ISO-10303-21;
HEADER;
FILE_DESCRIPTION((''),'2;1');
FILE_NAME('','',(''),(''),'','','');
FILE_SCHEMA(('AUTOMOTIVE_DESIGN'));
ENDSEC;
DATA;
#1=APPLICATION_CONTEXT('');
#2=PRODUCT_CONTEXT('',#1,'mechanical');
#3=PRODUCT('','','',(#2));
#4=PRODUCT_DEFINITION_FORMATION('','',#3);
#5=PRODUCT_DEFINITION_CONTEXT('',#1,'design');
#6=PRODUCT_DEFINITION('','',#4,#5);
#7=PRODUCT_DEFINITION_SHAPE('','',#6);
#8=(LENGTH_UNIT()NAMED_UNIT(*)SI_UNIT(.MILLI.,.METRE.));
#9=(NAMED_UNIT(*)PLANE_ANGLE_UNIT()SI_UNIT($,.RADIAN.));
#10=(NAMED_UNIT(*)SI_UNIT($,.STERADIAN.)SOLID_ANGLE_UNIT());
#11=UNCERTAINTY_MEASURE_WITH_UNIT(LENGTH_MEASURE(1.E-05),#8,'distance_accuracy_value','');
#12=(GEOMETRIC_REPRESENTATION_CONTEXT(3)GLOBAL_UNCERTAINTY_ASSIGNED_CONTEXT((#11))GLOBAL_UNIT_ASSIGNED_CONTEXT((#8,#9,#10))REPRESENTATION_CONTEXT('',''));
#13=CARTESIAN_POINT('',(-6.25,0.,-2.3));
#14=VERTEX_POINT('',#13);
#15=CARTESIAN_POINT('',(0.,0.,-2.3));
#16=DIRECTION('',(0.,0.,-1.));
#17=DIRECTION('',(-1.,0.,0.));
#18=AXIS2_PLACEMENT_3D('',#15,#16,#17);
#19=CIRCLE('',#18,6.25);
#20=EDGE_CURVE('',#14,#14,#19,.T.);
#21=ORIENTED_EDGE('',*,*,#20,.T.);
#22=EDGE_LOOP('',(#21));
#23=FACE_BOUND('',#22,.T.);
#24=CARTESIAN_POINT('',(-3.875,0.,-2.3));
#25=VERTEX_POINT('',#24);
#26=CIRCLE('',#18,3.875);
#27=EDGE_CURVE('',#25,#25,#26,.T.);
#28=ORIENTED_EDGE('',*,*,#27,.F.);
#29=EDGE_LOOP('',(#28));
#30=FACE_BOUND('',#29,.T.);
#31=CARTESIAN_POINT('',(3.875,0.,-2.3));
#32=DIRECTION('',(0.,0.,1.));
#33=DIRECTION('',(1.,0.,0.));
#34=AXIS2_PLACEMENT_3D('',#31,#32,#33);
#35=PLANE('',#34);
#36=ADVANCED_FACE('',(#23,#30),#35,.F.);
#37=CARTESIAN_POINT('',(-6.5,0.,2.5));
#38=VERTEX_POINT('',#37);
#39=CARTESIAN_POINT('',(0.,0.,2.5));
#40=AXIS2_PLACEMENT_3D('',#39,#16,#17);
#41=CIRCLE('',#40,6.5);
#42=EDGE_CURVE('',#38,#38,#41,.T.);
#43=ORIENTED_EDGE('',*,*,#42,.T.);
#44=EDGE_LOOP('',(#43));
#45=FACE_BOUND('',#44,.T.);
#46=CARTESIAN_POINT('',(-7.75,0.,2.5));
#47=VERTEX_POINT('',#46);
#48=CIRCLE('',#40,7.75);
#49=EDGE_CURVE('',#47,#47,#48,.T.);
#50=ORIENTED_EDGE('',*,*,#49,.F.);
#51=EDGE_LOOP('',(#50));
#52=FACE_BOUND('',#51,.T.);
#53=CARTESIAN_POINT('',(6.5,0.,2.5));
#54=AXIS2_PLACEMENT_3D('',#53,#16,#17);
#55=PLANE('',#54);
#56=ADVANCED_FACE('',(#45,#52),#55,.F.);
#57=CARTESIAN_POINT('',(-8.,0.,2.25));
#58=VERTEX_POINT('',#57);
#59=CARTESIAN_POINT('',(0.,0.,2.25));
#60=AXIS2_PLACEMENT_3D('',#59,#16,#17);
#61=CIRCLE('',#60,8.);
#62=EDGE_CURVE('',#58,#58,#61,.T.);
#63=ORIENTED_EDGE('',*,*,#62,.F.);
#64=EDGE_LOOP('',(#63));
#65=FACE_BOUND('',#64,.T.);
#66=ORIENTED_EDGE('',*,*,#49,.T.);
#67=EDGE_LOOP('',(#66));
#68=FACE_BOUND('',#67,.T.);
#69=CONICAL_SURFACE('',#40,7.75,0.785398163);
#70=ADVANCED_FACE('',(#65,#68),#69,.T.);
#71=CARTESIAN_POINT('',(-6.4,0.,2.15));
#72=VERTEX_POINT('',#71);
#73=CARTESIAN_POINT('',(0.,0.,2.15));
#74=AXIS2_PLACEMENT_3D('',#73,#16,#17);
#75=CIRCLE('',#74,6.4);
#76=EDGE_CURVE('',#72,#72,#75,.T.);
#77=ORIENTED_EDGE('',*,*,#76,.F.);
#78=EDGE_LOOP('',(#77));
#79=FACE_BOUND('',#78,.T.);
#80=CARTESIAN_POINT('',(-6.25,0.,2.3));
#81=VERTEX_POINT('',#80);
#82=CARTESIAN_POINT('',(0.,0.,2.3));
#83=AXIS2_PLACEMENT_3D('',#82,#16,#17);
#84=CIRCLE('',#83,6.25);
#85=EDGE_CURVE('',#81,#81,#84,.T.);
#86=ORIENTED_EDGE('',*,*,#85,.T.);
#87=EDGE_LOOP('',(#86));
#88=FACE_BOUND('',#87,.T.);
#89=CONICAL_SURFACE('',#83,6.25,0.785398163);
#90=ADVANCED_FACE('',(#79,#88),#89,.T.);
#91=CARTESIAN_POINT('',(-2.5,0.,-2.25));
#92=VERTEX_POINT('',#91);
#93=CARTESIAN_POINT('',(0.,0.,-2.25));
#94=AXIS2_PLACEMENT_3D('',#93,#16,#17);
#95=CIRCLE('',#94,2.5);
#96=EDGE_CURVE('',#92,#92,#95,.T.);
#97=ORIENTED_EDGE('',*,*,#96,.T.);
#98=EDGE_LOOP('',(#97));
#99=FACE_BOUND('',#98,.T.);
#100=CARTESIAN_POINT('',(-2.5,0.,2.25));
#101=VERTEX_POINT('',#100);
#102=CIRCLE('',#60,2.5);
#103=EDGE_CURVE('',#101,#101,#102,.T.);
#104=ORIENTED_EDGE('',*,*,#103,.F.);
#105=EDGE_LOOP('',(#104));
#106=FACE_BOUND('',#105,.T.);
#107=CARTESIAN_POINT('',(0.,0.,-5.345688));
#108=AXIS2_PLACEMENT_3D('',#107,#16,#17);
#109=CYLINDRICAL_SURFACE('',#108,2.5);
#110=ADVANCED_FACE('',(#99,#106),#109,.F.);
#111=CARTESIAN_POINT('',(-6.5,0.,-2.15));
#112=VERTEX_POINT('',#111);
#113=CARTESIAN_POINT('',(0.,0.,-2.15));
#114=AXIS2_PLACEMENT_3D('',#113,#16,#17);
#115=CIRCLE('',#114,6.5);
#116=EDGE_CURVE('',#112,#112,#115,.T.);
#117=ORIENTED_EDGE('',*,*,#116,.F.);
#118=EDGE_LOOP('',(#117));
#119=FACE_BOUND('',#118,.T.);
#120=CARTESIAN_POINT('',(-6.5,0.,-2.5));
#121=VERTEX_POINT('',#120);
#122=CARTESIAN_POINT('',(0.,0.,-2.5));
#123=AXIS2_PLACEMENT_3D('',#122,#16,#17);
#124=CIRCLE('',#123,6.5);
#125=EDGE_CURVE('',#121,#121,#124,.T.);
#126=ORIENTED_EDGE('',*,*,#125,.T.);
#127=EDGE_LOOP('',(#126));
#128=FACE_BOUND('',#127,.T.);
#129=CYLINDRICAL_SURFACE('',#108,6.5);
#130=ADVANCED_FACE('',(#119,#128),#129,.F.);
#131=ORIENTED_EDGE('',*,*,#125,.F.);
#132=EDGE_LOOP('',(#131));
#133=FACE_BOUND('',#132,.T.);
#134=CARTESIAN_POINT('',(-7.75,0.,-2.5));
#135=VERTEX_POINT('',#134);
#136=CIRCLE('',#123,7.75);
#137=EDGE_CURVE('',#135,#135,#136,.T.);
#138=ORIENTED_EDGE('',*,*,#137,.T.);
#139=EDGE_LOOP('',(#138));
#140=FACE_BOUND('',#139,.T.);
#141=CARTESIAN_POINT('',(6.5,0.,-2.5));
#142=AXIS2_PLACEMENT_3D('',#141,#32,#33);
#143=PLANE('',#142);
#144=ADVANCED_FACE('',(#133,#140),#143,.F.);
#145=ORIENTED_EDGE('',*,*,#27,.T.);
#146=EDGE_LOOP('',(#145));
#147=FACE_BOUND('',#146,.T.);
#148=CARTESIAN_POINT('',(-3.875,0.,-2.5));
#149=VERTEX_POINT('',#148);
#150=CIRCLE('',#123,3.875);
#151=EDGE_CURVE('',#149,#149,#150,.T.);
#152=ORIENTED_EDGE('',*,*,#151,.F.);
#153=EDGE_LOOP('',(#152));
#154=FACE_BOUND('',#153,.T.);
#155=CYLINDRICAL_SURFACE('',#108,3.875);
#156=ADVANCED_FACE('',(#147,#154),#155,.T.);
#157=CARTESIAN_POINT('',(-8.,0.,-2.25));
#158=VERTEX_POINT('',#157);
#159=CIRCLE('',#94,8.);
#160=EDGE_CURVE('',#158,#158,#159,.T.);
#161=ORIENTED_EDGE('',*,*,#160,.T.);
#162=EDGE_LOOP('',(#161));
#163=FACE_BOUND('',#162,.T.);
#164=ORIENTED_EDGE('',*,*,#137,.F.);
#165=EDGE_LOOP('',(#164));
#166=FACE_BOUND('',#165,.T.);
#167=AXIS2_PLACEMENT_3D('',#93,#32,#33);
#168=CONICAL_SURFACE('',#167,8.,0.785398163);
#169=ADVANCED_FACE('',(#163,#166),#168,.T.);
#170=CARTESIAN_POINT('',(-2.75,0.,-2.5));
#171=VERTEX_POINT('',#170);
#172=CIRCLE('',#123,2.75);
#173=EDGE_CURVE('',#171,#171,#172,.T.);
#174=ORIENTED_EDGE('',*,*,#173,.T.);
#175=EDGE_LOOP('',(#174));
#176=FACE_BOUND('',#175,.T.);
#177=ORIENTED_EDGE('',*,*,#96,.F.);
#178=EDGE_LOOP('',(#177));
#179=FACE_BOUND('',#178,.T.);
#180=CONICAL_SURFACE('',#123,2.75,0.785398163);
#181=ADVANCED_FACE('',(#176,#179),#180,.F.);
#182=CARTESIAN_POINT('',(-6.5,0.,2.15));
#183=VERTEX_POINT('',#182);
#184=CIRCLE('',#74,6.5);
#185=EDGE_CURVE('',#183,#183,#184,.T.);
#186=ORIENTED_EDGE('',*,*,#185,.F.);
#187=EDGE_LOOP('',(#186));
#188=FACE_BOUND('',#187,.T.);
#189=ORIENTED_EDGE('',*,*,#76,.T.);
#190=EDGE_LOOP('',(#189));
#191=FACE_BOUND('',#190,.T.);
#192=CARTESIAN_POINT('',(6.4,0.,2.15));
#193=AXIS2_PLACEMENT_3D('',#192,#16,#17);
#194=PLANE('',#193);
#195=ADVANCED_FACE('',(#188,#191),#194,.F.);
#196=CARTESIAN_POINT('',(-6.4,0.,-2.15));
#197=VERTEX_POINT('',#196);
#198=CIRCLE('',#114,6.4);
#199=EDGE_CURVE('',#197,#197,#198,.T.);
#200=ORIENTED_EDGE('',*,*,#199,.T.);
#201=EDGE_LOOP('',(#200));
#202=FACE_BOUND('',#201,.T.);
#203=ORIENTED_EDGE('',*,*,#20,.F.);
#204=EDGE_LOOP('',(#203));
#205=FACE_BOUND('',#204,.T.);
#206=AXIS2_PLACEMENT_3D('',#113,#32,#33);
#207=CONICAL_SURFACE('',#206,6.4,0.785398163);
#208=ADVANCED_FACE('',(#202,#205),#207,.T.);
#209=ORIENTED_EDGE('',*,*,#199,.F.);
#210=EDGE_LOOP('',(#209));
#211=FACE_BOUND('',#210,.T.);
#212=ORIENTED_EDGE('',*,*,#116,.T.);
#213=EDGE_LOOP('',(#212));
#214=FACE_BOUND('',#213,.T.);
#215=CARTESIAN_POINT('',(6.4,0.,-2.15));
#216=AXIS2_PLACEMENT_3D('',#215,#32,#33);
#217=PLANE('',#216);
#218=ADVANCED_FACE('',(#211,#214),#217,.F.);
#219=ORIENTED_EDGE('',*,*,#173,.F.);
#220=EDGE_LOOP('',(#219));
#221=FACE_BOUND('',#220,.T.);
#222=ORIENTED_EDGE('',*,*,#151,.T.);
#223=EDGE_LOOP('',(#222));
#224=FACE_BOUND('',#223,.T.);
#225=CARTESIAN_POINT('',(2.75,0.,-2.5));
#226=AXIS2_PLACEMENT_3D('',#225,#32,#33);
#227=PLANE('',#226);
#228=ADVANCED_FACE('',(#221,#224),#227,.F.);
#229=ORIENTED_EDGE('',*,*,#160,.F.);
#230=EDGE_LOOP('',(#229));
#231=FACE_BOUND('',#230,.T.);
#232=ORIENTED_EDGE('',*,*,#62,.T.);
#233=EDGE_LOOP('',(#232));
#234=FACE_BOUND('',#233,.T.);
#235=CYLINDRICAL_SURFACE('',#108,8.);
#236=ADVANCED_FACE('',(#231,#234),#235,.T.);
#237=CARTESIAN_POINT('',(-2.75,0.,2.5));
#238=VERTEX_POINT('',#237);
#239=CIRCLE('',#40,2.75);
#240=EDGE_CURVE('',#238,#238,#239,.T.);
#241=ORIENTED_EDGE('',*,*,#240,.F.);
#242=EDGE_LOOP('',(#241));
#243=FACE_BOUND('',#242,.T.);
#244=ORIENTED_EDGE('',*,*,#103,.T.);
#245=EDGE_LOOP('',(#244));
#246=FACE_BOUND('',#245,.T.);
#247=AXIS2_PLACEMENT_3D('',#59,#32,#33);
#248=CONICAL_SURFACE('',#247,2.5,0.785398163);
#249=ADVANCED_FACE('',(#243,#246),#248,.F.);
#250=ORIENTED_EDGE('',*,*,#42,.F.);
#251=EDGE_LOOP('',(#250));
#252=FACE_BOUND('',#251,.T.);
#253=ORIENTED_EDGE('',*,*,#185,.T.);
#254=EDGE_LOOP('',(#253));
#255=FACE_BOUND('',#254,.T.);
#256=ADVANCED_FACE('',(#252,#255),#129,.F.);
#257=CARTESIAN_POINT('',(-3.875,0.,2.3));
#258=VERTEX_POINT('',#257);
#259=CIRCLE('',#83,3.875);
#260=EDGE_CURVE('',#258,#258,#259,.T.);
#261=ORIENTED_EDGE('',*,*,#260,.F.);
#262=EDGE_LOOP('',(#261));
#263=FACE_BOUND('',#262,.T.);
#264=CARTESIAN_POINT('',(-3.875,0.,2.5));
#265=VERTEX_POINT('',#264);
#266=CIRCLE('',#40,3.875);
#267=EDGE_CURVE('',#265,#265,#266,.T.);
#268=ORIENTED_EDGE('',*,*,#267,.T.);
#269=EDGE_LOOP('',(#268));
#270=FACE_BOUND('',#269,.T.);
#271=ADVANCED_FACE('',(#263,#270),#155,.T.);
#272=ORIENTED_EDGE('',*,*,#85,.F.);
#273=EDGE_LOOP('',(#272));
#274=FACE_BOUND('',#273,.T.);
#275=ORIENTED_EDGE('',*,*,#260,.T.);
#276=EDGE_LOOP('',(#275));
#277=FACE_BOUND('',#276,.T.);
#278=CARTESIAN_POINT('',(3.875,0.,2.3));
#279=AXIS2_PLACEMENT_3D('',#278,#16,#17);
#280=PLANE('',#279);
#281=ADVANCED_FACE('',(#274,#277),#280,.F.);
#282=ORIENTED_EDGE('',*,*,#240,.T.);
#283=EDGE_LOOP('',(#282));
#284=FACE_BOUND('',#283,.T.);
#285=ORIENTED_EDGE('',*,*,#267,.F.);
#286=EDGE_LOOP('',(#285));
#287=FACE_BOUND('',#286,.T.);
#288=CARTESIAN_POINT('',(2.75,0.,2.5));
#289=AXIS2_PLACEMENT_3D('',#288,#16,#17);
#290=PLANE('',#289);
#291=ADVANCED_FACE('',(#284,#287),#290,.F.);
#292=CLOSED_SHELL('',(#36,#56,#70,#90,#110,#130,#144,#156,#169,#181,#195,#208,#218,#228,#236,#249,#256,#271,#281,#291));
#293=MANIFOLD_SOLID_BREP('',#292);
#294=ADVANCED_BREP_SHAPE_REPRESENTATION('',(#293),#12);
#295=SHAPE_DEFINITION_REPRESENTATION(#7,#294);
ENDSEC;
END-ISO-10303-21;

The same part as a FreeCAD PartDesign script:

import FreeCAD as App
import Part
import Sketcher
from FreeCAD import Vector
Q = App.Units.Quantity


def add_polygon(sketch, points):
    """Adds a closed chain of lines whose ends are joined by coincident constraints."""
    first, n = sketch.GeometryCount, len(points)
    for a, b in zip(points, points[1:] + points[:1]):
        sketch.addGeometry(Part.LineSegment(App.Vector(*a, 0), App.Vector(*b, 0)), False)
    for i in range(n):
        sketch.addConstraint(Sketcher.Constraint("Coincident", first + i, 2, first + (i + 1) % n, 1))

doc = App.newDocument("Part")
params = doc.addObject("Spreadsheet::Sheet", "Params")
for row, (alias, value) in enumerate([
    ("sketch1_width", "0.1 mm"),
    ("sketch1_height", "4.5 mm"),
    ("sketch1_height2", "0.2 mm"),
    ("sketch1_width2", "1.25 mm"),
    ("sketch1_height3", "0.35 mm"),
    ("revolution_angle", "360 deg"),
], start=1):
    params.set(f"A{row}", alias)
    params.set(f"B{row}", "=" + value)
    params.setAlias(f"B{row}", alias)

body = doc.addObject("PartDesign::Body", "Body")

sketch1 = body.newObject("Sketcher::SketchObject", "Sketch")
sketch1.AttachmentSupport = (doc.getObject("XZ_Plane"), [""])
sketch1.MapMode = "FlatFace"
add_polygon(sketch1, [(2.5, -2.25), (2.5, 2.25), (2.75, 2.5), (3.88, 2.5), (3.88, 2.3), (6.25, 2.3), (6.4, 2.15), (6.5, 2.15), (6.5, 2.5), (7.75, 2.5), (8, 2.25), (8, -2.25), (7.75, -2.5), (6.5, -2.5), (6.5, -2.15), (6.4, -2.15), (6.25, -2.3), (3.88, -2.3), (3.88, -2.5), (2.75, -2.5)])
sketch1.addConstraint([
    Sketcher.Constraint("Vertical", 0),
    Sketcher.Constraint("Horizontal", 2),
    Sketcher.Constraint("Vertical", 3),
    Sketcher.Constraint("Horizontal", 4),
    Sketcher.Constraint("Horizontal", 6),
    Sketcher.Constraint("Vertical", 7),
    Sketcher.Constraint("Horizontal", 8),
    Sketcher.Constraint("Vertical", 10),
    Sketcher.Constraint("Horizontal", 12),
    Sketcher.Constraint("Vertical", 13),
    Sketcher.Constraint("Horizontal", 14),
    Sketcher.Constraint("Horizontal", 16),
    Sketcher.Constraint("Vertical", 17),
    Sketcher.Constraint("Horizontal", 18),
    Sketcher.Constraint("Symmetric", 8, 2, 11, 2, -1),
    Sketcher.Constraint("Symmetric", 6, 2, 13, 2, -1),
    Sketcher.Constraint("Symmetric", 4, 2, 15, 2, -1),
    Sketcher.Constraint("Symmetric", 2, 2, 17, 2, -1),
    Sketcher.Constraint("Perpendicular", 1, 5),
    Sketcher.Constraint("Parallel", 5, 9),
    Sketcher.Constraint("Perpendicular", 9, 11),
    Sketcher.Constraint("Parallel", 11, 15),
    Sketcher.Constraint("Perpendicular", 15, 19),
    Sketcher.Constraint("Horizontal", 2, 2, 7, 2),
    Sketcher.Constraint("Horizontal", 0, 2, 9, 2),
    Sketcher.Constraint("Horizontal", 10, 2, 19, 2),
    Sketcher.Constraint("Vertical", 5, 2, 14, 2),
    Sketcher.Constraint("DistanceX", 6, 1, 6, 2, Q("0.1 mm")),
    Sketcher.Constraint("DistanceY", 0, 1, 0, 2, Q("4.5 mm")),
    Sketcher.Constraint("DistanceY", 3, 2, 3, 1, Q("0.2 mm")),
    Sketcher.Constraint("DistanceX", -1, 1, 9, 2, Q("8 mm")),
    Sketcher.Constraint("DistanceY", 11, 2, 8, 2, Q("5 mm")),
    Sketcher.Constraint("DistanceX", 8, 1, 8, 2, Q("1.25 mm")),
    Sketcher.Constraint("DistanceY", 7, 1, 7, 2, Q("0.35 mm")),
    Sketcher.Constraint("DistanceX", -1, 1, 0, 2, Q("2.5 mm")),
    Sketcher.Constraint("DistanceX", 2, 1, 2, 2, Q("1.125 mm")),
])
sketch1.setExpression("Constraints[47]", "Params.sketch1_width")
sketch1.setExpression("Constraints[48]", "Params.sketch1_height")
sketch1.setExpression("Constraints[49]", "Params.sketch1_height2")
sketch1.setExpression("Constraints[52]", "Params.sketch1_width2")
sketch1.setExpression("Constraints[53]", "Params.sketch1_height3")
revolution = body.newObject("PartDesign::Revolution", "Revolution")
revolution.Profile = sketch1
revolution.ReferenceAxis = (sketch1, ["V_Axis"])
revolution.setExpression("Angle", "Params.revolution_angle")

doc.recompute()
